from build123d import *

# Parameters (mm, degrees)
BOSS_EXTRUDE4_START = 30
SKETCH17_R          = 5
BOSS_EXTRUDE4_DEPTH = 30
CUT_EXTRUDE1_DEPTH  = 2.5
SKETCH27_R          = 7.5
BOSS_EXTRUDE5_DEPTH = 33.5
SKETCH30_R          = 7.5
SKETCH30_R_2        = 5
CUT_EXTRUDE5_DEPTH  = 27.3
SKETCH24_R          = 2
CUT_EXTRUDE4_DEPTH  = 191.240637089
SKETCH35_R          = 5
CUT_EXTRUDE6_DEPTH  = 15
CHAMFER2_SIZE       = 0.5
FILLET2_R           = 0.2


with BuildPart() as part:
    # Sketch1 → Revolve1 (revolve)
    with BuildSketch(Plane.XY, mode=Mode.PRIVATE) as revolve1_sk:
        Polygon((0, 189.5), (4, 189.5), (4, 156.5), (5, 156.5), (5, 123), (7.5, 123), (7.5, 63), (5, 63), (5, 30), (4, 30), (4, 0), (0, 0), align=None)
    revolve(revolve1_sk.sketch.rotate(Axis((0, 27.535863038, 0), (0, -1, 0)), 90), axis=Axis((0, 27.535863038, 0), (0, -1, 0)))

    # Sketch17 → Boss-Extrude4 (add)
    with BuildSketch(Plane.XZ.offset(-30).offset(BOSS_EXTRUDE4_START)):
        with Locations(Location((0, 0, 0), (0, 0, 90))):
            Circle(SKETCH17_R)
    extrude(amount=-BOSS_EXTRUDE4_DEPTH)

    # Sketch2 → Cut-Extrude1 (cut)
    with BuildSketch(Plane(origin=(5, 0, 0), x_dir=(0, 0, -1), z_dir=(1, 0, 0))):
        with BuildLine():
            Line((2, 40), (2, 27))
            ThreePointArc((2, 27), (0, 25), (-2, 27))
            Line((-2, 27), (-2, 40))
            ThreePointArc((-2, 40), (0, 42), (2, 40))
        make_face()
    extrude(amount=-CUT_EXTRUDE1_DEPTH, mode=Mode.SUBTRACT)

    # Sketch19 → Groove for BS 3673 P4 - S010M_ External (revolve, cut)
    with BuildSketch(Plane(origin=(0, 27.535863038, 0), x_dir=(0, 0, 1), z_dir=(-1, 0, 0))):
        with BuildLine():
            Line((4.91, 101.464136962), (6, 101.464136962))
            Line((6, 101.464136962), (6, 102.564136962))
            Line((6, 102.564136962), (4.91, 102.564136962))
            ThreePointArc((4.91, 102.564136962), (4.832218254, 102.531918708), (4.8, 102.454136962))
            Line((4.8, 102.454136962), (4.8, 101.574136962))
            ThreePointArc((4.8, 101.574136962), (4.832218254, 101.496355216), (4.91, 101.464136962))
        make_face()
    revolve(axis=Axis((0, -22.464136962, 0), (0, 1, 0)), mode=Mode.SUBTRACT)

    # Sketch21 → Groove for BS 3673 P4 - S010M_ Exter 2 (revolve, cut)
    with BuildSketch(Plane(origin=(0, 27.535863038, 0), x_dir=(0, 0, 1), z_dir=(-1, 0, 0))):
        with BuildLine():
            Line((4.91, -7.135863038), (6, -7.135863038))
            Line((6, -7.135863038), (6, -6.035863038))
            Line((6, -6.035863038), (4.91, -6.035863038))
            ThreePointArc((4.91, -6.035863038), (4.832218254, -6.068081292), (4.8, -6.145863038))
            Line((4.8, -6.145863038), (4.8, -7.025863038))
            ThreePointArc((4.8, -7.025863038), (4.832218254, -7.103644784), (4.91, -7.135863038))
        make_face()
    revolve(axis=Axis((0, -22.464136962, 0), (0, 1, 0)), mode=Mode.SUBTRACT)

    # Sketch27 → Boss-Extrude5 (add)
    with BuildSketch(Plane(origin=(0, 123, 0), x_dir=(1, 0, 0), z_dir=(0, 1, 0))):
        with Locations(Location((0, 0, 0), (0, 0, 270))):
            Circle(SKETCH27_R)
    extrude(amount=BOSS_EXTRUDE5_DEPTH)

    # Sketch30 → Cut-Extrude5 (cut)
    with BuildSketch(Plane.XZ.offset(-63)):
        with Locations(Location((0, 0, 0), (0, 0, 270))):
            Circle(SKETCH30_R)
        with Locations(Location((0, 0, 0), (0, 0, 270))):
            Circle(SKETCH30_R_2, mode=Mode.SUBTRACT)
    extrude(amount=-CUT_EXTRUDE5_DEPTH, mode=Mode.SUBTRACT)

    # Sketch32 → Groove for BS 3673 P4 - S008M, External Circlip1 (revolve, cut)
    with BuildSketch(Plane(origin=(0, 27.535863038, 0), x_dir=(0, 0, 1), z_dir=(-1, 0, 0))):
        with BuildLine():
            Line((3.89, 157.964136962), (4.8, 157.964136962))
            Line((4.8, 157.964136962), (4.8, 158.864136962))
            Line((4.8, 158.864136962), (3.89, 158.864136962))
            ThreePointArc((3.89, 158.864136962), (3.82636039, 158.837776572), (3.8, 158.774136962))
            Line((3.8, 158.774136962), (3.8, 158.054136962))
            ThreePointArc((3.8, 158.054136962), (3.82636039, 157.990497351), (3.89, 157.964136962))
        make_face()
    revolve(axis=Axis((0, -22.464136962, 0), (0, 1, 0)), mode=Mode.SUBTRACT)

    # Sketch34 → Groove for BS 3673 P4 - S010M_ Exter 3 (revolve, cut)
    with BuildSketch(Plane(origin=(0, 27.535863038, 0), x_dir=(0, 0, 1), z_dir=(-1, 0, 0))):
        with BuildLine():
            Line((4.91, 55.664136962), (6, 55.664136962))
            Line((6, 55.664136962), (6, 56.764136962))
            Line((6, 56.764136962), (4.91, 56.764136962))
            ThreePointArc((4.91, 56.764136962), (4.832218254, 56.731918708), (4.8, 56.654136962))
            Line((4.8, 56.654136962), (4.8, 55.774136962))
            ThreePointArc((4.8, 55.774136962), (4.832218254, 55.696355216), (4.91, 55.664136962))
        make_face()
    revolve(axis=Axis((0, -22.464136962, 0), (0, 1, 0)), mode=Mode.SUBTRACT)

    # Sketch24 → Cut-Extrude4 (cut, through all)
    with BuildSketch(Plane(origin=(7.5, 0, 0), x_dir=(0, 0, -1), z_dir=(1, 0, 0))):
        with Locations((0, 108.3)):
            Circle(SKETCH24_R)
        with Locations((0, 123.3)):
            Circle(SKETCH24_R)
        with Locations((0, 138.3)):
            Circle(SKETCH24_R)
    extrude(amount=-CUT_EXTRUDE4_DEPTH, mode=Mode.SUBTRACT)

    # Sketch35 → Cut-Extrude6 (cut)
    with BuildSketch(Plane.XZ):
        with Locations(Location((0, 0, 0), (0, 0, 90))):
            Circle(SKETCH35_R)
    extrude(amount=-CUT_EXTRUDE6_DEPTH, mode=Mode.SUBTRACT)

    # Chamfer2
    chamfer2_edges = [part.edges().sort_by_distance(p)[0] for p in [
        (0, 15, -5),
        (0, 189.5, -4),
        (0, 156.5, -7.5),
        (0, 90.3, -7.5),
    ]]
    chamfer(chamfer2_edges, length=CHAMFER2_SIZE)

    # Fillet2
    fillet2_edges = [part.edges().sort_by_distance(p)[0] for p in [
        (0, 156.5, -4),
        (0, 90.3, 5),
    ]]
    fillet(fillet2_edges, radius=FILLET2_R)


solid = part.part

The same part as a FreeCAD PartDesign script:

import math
import FreeCAD as App
import Part
import Sketcher
Q = App.Units.Quantity


def edges_at(feature, points):
    """Names of the edges that pass closest to the given points."""
    edges = feature.Shape.Edges
    near = lambda p: min(range(len(edges)), key=lambda i: edges[i].distToShape(Part.Vertex(*p))[0])
    return sorted({f"Edge{near(p) + 1}" for p in points})


def add_polygon(sketch, points):
    """Adds a closed chain of lines whose ends are joined by coincident constraints."""
    first, n = sketch.GeometryCount, len(points)
    for a, b in zip(points, points[1:] + points[:1]):
        sketch.addGeometry(Part.LineSegment(App.Vector(*a, 0), App.Vector(*b, 0)), False)
    for i in range(n):
        sketch.addConstraint(Sketcher.Constraint("Coincident", first + i, 2, first + (i + 1) % n, 1))

doc = App.newDocument("Part")
body = doc.addObject("PartDesign::Body", "Body")

# Sketch on XY plane
sketch1 = doc.addObject("Sketcher::SketchObject", "Sketch")
body.addObject(sketch1)
sketch1.AttachmentSupport = (doc.XY_Plane, [""])
sketch1.MapMode = "FlatFace"
add_polygon(sketch1, [(4, 189.5), (0, 189.5), (0, 0), (4, 0), (4, 30), (5, 30), (5, 63), (7.5, 63), (7.5, 123), (5, 123), (5, 156.5), (4, 156.5)])  # lines 0-11
sketch1.addConstraint([
    Sketcher.Constraint("Horizontal", 0),
    Sketcher.Constraint("Vertical", 1),
    Sketcher.Constraint("Horizontal", 2),
    Sketcher.Constraint("Vertical", 3),
    Sketcher.Constraint("Horizontal", 4),
    Sketcher.Constraint("Vertical", 5),
    Sketcher.Constraint("Horizontal", 6),
    Sketcher.Constraint("Vertical", 7),
    Sketcher.Constraint("Horizontal", 8),
    Sketcher.Constraint("Vertical", 9),
    Sketcher.Constraint("Horizontal", 10),
    Sketcher.Constraint("Vertical", 11),
    Sketcher.Constraint("Coincident", 1, 2, -1, 1),
    Sketcher.Constraint("Vertical", 5, 2, 8, 2),
    Sketcher.Constraint("Vertical", 3, 2, 10, 2),
    Sketcher.Constraint("Equal", 5, 11),
    Sketcher.Constraint("DistanceX", 0, 2, 0, 1, Q("4 mm")),
    Sketcher.Constraint("DistanceX", 4, 1, 4, 2, Q("1 mm")),
    Sketcher.Constraint("DistanceY", 3, 1, 3, 2, Q("30 mm")),
    Sketcher.Constraint("DistanceY", 5, 1, 5, 2, Q("33 mm")),
    Sketcher.Constraint("DistanceY", 7, 1, 7, 2, Q("60 mm")),
    Sketcher.Constraint("DistanceX", 6, 1, 6, 2, Q("2.5 mm")),
    Sketcher.Constraint("DistanceY", 1, 2, 1, 1, Q("189.5 mm")),
])
revolution = doc.addObject("PartDesign::Revolution", "Revolution")
body.addObject(revolution)
revolution.Profile = sketch1
revolution.ReferenceAxis = (sketch1, ["V_Axis"])
revolution.Angle = 360

# Sketch on XZ plane
sketch2 = doc.addObject("Sketcher::SketchObject", "Sketch001")
body.addObject(sketch2)
sketch2.AttachmentSupport = (doc.XZ_Plane, [""])
sketch2.MapMode = "FlatFace"
sketch2.addGeometry(Part.Circle(App.Vector(0, 0, 0), App.Vector(0, 0, 1), 5), False)
sketch2.addConstraint([
    Sketcher.Constraint("Coincident", 0, 3, -1, 1),
    Sketcher.Constraint("Diameter", 0, Q("10 mm")),
])
pad1 = doc.addObject("PartDesign::Pad", "Pad")
body.addObject(pad1)
pad1.Profile = sketch2
pad1.Length = 30
pad1.Reversed = True

# Sketch on YZ plane
sketch3 = doc.addObject("Sketcher::SketchObject", "Sketch002")
body.addObject(sketch3)
sketch3.AttachmentSupport = (doc.YZ_Plane, [""])
sketch3.MapMode = "FlatFace"
sketch3.AttachmentOffset = App.Placement(App.Vector(0, 0, 5), App.Rotation())
sketch3.addGeometry([
    Part.LineSegment(App.Vector(27, -2, 0), App.Vector(40, -2, 0)),
    Part.ArcOfCircle(Part.Circle(App.Vector(40, 0, 0), App.Vector(0, 0, 1), 2), math.radians(-90), math.radians(90)),
    Part.LineSegment(App.Vector(40, 2, 0), App.Vector(27, 2, 0)),
    Part.ArcOfCircle(Part.Circle(App.Vector(27, 0, 0), App.Vector(0, 0, 1), 2), math.radians(90), math.radians(270)),
], False)
sketch3.addConstraint([
    Sketcher.Constraint("Tangent", 0, 2, 1, 1),
    Sketcher.Constraint("Tangent", 1, 2, 2, 1),
    Sketcher.Constraint("Tangent", 2, 2, 3, 1),
    Sketcher.Constraint("Tangent", 3, 2, 0, 1),
    Sketcher.Constraint("Horizontal", 0),
    Sketcher.Constraint("Horizontal", 2),
    Sketcher.Constraint("PointOnObject", 1, 3, -1),
    Sketcher.Constraint("Radius", 1, Q("2 mm")),
    Sketcher.Constraint("DistanceX", 0, 1, 0, 2, Q("13 mm")),
    Sketcher.Constraint("DistanceX", -1, 1, 1, 3, Q("40 mm")),
])
pocket1 = doc.addObject("PartDesign::Pocket", "Pocket")
body.addObject(pocket1)
pocket1.Profile = sketch3
pocket1.Length = 2.5

# Sketch on YZ plane
sketch4 = doc.addObject("Sketcher::SketchObject", "Sketch003")
body.addObject(sketch4)
sketch4.AttachmentSupport = (doc.YZ_Plane, [""])
sketch4.MapMode = "FlatFace"
sketch4.addGeometry([
    Part.LineSegment(App.Vector(129, 4.91, 0), App.Vector(129, 6, 0)),  # 0
    Part.LineSegment(App.Vector(129, 6, 0), App.Vector(130.1, 6, 0)),  # 1
    Part.LineSegment(App.Vector(130.1, 6, 0), App.Vector(130.1, 4.91, 0)),  # 2
    Part.ArcOfCircle(Part.Circle(App.Vector(129.99, 4.91, 0), App.Vector(0, 0, 1), 0.11), math.radians(-90), math.radians(0)),  # 3
    Part.LineSegment(App.Vector(129.99, 4.8, 0), App.Vector(129.11, 4.8, 0)),  # 4
    Part.ArcOfCircle(Part.Circle(App.Vector(129.11, 4.91, 0), App.Vector(0, 0, 1), 0.11), math.radians(180), math.radians(270)),  # 5
], False)
sketch4.addConstraint([
    Sketcher.Constraint("Coincident", 0, 2, 1, 1),
    Sketcher.Constraint("Coincident", 1, 2, 2, 1),
    Sketcher.Constraint("Tangent", 2, 2, 3, 2),
    Sketcher.Constraint("Tangent", 3, 1, 4, 1),
    Sketcher.Constraint("Tangent", 4, 2, 5, 2),
    Sketcher.Constraint("Tangent", 5, 1, 0, 1),
    Sketcher.Constraint("Vertical", 0),
    Sketcher.Constraint("Horizontal", 1),
    Sketcher.Constraint("Vertical", 2),
    Sketcher.Constraint("Horizontal", 4),
    Sketcher.Constraint("Equal", 3, 5),
    Sketcher.Constraint("Radius", 3, Q("0.11 mm")),
    Sketcher.Constraint("DistanceX", 1, 1, 1, 2, Q("1.1 mm")),
    Sketcher.Constraint("DistanceX", -1, 1, 0, 2, Q("129 mm")),
    Sketcher.Constraint("DistanceY", -1, 1, 0, 2, Q("6 mm")),
    Sketcher.Constraint("DistanceY", 0, 1, 0, 2, Q("1.09 mm")),
])
groove = doc.addObject("PartDesign::Groove", "Groove")
body.addObject(groove)
groove.Profile = sketch4
groove.ReferenceAxis = (sketch4, ["H_Axis"])
groove.Angle = 360

# Sketch on YZ plane
sketch5 = doc.addObject("Sketcher::SketchObject", "Sketch004")
body.addObject(sketch5)
sketch5.AttachmentSupport = (doc.YZ_Plane, [""])
sketch5.MapMode = "FlatFace"
sketch5.addGeometry([
    Part.LineSegment(App.Vector(20.4, 4.91, 0), App.Vector(20.4, 6, 0)),  # 0
    Part.LineSegment(App.Vector(20.4, 6, 0), App.Vector(21.5, 6, 0)),  # 1
    Part.LineSegment(App.Vector(21.5, 6, 0), App.Vector(21.5, 4.91, 0)),  # 2
    Part.ArcOfCircle(Part.Circle(App.Vector(21.39, 4.91, 0), App.Vector(0, 0, 1), 0.11), math.radians(-90), math.radians(0)),  # 3
    Part.LineSegment(App.Vector(21.39, 4.8, 0), App.Vector(20.51, 4.8, 0)),  # 4
    Part.ArcOfCircle(Part.Circle(App.Vector(20.51, 4.91, 0), App.Vector(0, 0, 1), 0.11), math.radians(180), math.radians(270)),  # 5
], False)
sketch5.addConstraint([
    Sketcher.Constraint("Coincident", 0, 2, 1, 1),
    Sketcher.Constraint("Coincident", 1, 2, 2, 1),
    Sketcher.Constraint("Tangent", 2, 2, 3, 2),
    Sketcher.Constraint("Tangent", 3, 1, 4, 1),
    Sketcher.Constraint("Tangent", 4, 2, 5, 2),
    Sketcher.Constraint("Tangent", 5, 1, 0, 1),
    Sketcher.Constraint("Vertical", 0),
    Sketcher.Constraint("Horizontal", 1),
    Sketcher.Constraint("Vertical", 2),
    Sketcher.Constraint("Horizontal", 4),
    Sketcher.Constraint("Equal", 3, 5),
    Sketcher.Constraint("Radius", 3, Q("0.11 mm")),
    Sketcher.Constraint("DistanceX", 1, 1, 1, 2, Q("1.1 mm")),
    Sketcher.Constraint("DistanceY", -1, 1, 0, 2, Q("6 mm")),
    Sketcher.Constraint("DistanceY", 0, 1, 0, 2, Q("1.09 mm")),
    Sketcher.Constraint("DistanceX", -1, 1, 0, 2, Q("20.4 mm")),
])
groove2 = doc.addObject("PartDesign::Groove", "Groove001")
body.addObject(groove2)
groove2.Profile = sketch5
groove2.ReferenceAxis = (sketch5, ["H_Axis"])
groove2.Angle = 360

# Sketch on XZ plane
sketch6 = doc.addObject("Sketcher::SketchObject", "Sketch005")
body.addObject(sketch6)
sketch6.AttachmentSupport = (doc.XZ_Plane, [""])
sketch6.MapMode = "FlatFace"
sketch6.AttachmentOffset = App.Placement(App.Vector(0, 0, -123), App.Rotation())
sketch6.addGeometry(Part.Circle(App.Vector(0, 0, 0), App.Vector(0, 0, 1), 8), False)
sketch6.addConstraint([
    Sketcher.Constraint("Coincident", 0, 3, -1, 1),
    Sketcher.Constraint("Diameter", 0, Q("15 mm")),
])
pad2 = doc.addObject("PartDesign::Pad", "Pad001")
body.addObject(pad2)
pad2.Profile = sketch6
pad2.Length = 33.5
pad2.Reversed = True

# Sketch on XZ plane
sketch7 = doc.addObject("Sketcher::SketchObject", "Sketch006")
body.addObject(sketch7)
sketch7.AttachmentSupport = (doc.XZ_Plane, [""])
sketch7.MapMode = "FlatFace"
sketch7.AttachmentOffset = App.Placement(App.Vector(0, 0, -63), App.Rotation())
sketch7.addGeometry([
    Part.Circle(App.Vector(0, 0, 0), App.Vector(0, 0, 1), 8),
    Part.Circle(App.Vector(0, 0, 0), App.Vector(0, 0, 1), 5),
], False)
sketch7.addConstraint([
    Sketcher.Constraint("Coincident", 0, 3, -1, 1),
    Sketcher.Constraint("Coincident", 1, 3, -1, 1),
    Sketcher.Constraint("Diameter", 0, Q("15 mm")),
    Sketcher.Constraint("Diameter", 1, Q("10 mm")),
])
pocket2 = doc.addObject("PartDesign::Pocket", "Pocket001")
body.addObject(pocket2)
pocket2.Profile = sketch7
pocket2.Length = 27.3

# Sketch on YZ plane
sketch8 = doc.addObject("Sketcher::SketchObject", "Sketch007")
body.addObject(sketch8)
sketch8.AttachmentSupport = (doc.YZ_Plane, [""])
sketch8.MapMode = "FlatFace"
sketch8.addGeometry([
    Part.LineSegment(App.Vector(185.5, 3.89, 0), App.Vector(185.5, 4.8, 0)),  # 0
    Part.LineSegment(App.Vector(185.5, 4.8, 0), App.Vector(186.4, 4.8, 0)),  # 1
    Part.LineSegment(App.Vector(186.4, 4.8, 0), App.Vector(186.4, 3.89, 0)),  # 2
    Part.ArcOfCircle(Part.Circle(App.Vector(186.31, 3.89, 0), App.Vector(0, 0, 1), 0.09), math.radians(-90), math.radians(0)),  # 3
    Part.LineSegment(App.Vector(186.31, 3.8, 0), App.Vector(185.59, 3.8, 0)),  # 4
    Part.ArcOfCircle(Part.Circle(App.Vector(185.59, 3.89, 0), App.Vector(0, 0, 1), 0.09), math.radians(180), math.radians(270)),  # 5
], False)
sketch8.addConstraint([
    Sketcher.Constraint("Coincident", 0, 2, 1, 1),
    Sketcher.Constraint("Coincident", 1, 2, 2, 1),
    Sketcher.Constraint("Tangent", 2, 2, 3, 2),
    Sketcher.Constraint("Tangent", 3, 1, 4, 1),
    Sketcher.Constraint("Tangent", 4, 2, 5, 2),
    Sketcher.Constraint("Tangent", 5, 1, 0, 1),
    Sketcher.Constraint("Vertical", 0),
    Sketcher.Constraint("Horizontal", 1),
    Sketcher.Constraint("Vertical", 2),
    Sketcher.Constraint("Horizontal", 4),
    Sketcher.Constraint("Equal", 3, 5),
    Sketcher.Constraint("Radius", 3, Q("0.09 mm")),
    Sketcher.Constraint("DistanceX", 1, 1, 1, 2, Q("0.9 mm")),
    Sketcher.Constraint("DistanceY", 3, 1, 1, 2, Q("1 mm")),
    Sketcher.Constraint("DistanceX", -1, 1, 0, 2, Q("185.5 mm")),
    Sketcher.Constraint("DistanceY", -1, 1, 0, 2, Q("4.8 mm")),
])
groove3 = doc.addObject("PartDesign::Groove", "Groove002")
body.addObject(groove3)
groove3.Profile = sketch8
groove3.ReferenceAxis = (sketch8, ["H_Axis"])
groove3.Angle = 360

# Sketch on YZ plane
sketch9 = doc.addObject("Sketcher::SketchObject", "Sketch008")
body.addObject(sketch9)
sketch9.AttachmentSupport = (doc.YZ_Plane, [""])
sketch9.MapMode = "FlatFace"
sketch9.addGeometry([
    Part.LineSegment(App.Vector(83.2, 4.91, 0), App.Vector(83.2, 6, 0)),  # 0
    Part.LineSegment(App.Vector(83.2, 6, 0), App.Vector(84.3, 6, 0)),  # 1
    Part.LineSegment(App.Vector(84.3, 6, 0), App.Vector(84.3, 4.91, 0)),  # 2
    Part.ArcOfCircle(Part.Circle(App.Vector(84.19, 4.91, 0), App.Vector(0, 0, 1), 0.11), math.radians(-90), math.radians(0)),  # 3
    Part.LineSegment(App.Vector(84.19, 4.8, 0), App.Vector(83.31, 4.8, 0)),  # 4
    Part.ArcOfCircle(Part.Circle(App.Vector(83.31, 4.91, 0), App.Vector(0, 0, 1), 0.11), math.radians(180), math.radians(270)),  # 5
], False)
sketch9.addConstraint([
    Sketcher.Constraint("Coincident", 0, 2, 1, 1),
    Sketcher.Constraint("Coincident", 1, 2, 2, 1),
    Sketcher.Constraint("Tangent", 2, 2, 3, 2),
    Sketcher.Constraint("Tangent", 3, 1, 4, 1),
    Sketcher.Constraint("Tangent", 4, 2, 5, 2),
    Sketcher.Constraint("Tangent", 5, 1, 0, 1),
    Sketcher.Constraint("Vertical", 0),
    Sketcher.Constraint("Horizontal", 1),
    Sketcher.Constraint("Vertical", 2),
    Sketcher.Constraint("Horizontal", 4),
    Sketcher.Constraint("Equal", 3, 5),
    Sketcher.Constraint("Radius", 3, Q("0.11 mm")),
    Sketcher.Constraint("DistanceX", 1, 1, 1, 2, Q("1.1 mm")),
    Sketcher.Constraint("DistanceY", -1, 1, 0, 2, Q("6 mm")),
    Sketcher.Constraint("DistanceY", 0, 1, 0, 2, Q("1.09 mm")),
    Sketcher.Constraint("DistanceX", -1, 1, 0, 2, Q("83.2 mm")),
])
groove4 = doc.addObject("PartDesign::Groove", "Groove003")
body.addObject(groove4)
groove4.Profile = sketch9
groove4.ReferenceAxis = (sketch9, ["H_Axis"])
groove4.Angle = 360

# Sketch on YZ plane
sketch10 = doc.addObject("Sketcher::SketchObject", "Sketch009")
body.addObject(sketch10)
sketch10.AttachmentSupport = (doc.YZ_Plane, [""])
sketch10.MapMode = "FlatFace"
sketch10.AttachmentOffset = App.Placement(App.Vector(0, 0, 7.5), App.Rotation())
sketch10.addGeometry([
    Part.Circle(App.Vector(108.3, 0, 0), App.Vector(0, 0, 1), 2),
    Part.Circle(App.Vector(123.3, 0, 0), App.Vector(0, 0, 1), 2),
    Part.Circle(App.Vector(138.3, 0, 0), App.Vector(0, 0, 1), 2),
], False)
sketch10.addConstraint([
    Sketcher.Constraint("Equal", 0, 1),
    Sketcher.Constraint("Equal", 1, 2),
    Sketcher.Constraint("PointOnObject", 0, 3, -1),
    Sketcher.Constraint("PointOnObject", 1, 3, -1),
    Sketcher.Constraint("PointOnObject", 2, 3, -1),
    Sketcher.Constraint("Diameter", 0, Q("4 mm")),
    Sketcher.Constraint("DistanceX", 0, 3, 1, 3, Q("15 mm")),
    Sketcher.Constraint("DistanceX", 1, 3, 2, 3, Q("15 mm")),
    Sketcher.Constraint("DistanceX", -1, 1, 0, 3, Q("108.3 mm")),
])
pocket3 = doc.addObject("PartDesign::Pocket", "Pocket002")
body.addObject(pocket3)
pocket3.Profile = sketch10
pocket3.Type = "ThroughAll"

# Sketch on XZ plane
sketch11 = doc.addObject("Sketcher::SketchObject", "Sketch010")
body.addObject(sketch11)
sketch11.AttachmentSupport = (doc.XZ_Plane, [""])
sketch11.MapMode = "FlatFace"
sketch11.addGeometry(Part.Circle(App.Vector(0, 0, 0), App.Vector(0, 0, 1), 5), False)
sketch11.addConstraint([
    Sketcher.Constraint("Coincident", 0, 3, -1, 1),
    Sketcher.Constraint("Diameter", 0, Q("10 mm")),
])
pocket4 = doc.addObject("PartDesign::Pocket", "Pocket003")
body.addObject(pocket4)
pocket4.Profile = sketch11
pocket4.Length = 15
doc.recompute()

chamfer = doc.addObject("PartDesign::Chamfer", "Chamfer")
body.addObject(chamfer)
chamfer.Base = (pocket4, edges_at(pocket4, [
    (0, 15, -5),
    (0, 189.5, -4),
    (0, 156.5, -7.5),
    (0, 90.3, -7.5),
]))
chamfer.Size = 0.5
doc.recompute()

fillet = doc.addObject("PartDesign::Fillet", "Fillet")
body.addObject(fillet)
fillet.Base = (chamfer, edges_at(chamfer, [(0, 156.5, -4), (0, 90.3, 5)]))
fillet.Radius = 0.2

doc.recompute()
